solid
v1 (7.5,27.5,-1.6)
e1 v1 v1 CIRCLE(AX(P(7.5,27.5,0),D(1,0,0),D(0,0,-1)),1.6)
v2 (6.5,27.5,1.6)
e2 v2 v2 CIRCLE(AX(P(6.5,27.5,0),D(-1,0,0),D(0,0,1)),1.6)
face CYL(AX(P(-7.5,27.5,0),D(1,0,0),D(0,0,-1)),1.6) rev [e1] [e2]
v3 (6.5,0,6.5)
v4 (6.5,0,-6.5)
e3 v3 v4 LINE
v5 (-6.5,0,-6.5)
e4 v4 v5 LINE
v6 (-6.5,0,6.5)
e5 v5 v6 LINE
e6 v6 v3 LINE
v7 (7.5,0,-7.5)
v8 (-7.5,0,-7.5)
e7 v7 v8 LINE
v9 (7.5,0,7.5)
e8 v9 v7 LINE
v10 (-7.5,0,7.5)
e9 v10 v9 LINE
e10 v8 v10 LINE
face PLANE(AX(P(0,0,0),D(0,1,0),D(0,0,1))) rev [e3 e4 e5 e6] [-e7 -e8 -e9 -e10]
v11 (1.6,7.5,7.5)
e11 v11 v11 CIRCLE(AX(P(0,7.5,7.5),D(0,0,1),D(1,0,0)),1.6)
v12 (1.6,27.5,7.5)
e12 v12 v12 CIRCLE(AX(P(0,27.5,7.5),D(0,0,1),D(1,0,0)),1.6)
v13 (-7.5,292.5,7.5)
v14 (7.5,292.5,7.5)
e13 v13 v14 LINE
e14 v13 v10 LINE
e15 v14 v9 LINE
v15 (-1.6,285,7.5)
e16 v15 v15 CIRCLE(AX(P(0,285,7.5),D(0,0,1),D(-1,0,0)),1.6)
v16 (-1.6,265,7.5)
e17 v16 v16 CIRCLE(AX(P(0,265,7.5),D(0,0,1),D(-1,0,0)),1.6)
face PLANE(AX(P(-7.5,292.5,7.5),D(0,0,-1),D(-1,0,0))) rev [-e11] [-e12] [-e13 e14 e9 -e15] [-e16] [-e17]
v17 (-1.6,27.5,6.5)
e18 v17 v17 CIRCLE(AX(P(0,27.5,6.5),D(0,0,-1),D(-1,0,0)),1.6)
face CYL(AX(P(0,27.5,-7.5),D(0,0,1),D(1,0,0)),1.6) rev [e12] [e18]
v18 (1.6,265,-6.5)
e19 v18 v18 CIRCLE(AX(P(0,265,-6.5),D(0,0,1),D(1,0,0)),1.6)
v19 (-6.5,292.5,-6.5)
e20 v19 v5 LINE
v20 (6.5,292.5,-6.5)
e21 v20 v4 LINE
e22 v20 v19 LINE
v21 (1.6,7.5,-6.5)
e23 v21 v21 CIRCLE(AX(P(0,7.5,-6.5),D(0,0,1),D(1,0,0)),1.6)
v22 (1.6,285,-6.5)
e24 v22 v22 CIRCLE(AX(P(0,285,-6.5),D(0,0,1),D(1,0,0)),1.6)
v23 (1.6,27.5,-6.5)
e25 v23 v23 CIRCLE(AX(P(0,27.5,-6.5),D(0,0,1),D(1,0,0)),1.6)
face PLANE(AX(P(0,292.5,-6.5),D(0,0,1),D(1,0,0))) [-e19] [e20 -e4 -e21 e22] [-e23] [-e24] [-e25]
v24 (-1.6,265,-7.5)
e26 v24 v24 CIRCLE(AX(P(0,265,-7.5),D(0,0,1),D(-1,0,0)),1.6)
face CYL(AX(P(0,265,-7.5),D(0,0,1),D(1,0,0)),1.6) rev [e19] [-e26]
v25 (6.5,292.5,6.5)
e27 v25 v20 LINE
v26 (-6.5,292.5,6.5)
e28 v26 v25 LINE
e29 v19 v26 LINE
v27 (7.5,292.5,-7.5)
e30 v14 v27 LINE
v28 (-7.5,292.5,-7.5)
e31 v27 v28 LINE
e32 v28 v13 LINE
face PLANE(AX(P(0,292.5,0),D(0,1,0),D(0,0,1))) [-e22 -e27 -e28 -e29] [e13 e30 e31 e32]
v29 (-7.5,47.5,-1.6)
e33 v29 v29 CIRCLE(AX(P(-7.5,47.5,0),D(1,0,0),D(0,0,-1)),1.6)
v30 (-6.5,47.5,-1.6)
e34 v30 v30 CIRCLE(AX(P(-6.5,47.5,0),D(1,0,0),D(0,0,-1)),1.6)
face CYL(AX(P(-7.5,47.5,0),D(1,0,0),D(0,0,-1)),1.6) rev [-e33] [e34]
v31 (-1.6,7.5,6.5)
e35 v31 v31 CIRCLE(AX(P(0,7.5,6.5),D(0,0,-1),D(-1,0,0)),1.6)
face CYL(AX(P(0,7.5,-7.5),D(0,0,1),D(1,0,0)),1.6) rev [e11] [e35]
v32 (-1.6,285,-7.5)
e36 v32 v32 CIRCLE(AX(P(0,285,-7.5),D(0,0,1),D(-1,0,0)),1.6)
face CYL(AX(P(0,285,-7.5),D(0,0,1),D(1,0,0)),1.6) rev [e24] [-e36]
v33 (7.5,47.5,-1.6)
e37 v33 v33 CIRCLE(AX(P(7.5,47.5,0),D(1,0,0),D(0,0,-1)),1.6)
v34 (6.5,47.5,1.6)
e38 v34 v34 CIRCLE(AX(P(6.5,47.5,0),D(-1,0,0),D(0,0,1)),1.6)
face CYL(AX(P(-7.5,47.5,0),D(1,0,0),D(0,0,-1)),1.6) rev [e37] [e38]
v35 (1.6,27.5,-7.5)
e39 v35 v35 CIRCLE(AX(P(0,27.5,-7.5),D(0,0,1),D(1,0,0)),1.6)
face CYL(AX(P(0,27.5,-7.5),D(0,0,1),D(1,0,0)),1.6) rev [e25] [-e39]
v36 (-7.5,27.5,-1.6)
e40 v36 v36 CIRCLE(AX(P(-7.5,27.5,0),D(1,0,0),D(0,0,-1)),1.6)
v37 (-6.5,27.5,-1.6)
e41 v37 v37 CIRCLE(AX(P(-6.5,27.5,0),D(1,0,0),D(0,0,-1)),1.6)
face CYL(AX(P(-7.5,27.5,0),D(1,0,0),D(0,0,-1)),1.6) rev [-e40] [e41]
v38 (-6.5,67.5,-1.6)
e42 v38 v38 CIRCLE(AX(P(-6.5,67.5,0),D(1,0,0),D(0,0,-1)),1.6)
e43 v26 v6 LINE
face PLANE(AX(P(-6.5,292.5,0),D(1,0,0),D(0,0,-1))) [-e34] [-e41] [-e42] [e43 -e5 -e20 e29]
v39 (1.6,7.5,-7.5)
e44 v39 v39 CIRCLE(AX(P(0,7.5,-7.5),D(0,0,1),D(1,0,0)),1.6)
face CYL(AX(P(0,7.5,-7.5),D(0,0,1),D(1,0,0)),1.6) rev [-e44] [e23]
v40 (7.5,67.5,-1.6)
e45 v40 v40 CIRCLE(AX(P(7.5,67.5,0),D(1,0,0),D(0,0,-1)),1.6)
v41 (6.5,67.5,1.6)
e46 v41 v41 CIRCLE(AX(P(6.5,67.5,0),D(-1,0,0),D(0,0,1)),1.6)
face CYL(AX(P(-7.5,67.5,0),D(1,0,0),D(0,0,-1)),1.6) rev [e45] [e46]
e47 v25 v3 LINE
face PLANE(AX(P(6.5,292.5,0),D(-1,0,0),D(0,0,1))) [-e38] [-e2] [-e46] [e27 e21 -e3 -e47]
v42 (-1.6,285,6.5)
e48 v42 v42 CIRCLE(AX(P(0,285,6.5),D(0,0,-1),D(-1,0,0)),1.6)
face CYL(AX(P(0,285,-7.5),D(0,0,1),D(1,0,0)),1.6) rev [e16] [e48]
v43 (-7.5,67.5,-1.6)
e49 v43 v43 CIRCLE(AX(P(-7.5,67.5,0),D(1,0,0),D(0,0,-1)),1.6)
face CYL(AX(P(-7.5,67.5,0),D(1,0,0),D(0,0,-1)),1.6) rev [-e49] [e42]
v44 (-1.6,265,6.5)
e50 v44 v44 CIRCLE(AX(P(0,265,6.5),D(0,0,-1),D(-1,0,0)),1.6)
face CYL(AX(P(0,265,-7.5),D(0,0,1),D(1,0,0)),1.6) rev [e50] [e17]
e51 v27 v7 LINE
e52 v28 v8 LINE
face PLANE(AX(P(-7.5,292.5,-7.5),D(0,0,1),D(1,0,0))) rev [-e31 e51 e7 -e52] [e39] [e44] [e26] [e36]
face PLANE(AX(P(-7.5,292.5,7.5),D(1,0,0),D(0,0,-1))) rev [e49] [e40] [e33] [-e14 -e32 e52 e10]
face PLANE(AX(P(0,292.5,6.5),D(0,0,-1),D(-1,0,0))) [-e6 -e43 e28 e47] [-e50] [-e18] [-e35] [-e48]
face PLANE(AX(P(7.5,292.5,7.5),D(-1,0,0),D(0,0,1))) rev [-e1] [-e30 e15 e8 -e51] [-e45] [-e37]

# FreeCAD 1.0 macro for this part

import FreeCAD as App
import Part
import Sketcher

V = App.Vector
Q = App.Units.Quantity


def add_polygon(sketch, points):
    """Adds a closed chain of lines whose ends are joined by coincident constraints."""
    first, n = sketch.GeometryCount, len(points)
    for a, b in zip(points, points[1:] + points[:1]):
        sketch.addGeometry(Part.LineSegment(App.Vector(*a, 0), App.Vector(*b, 0)), False)
    for i in range(n):
        sketch.addConstraint(Sketcher.Constraint("Coincident", first + i, 2, first + (i + 1) % n, 1))

doc = App.newDocument("Part")
body = doc.addObject("PartDesign::Body", "Body")

# Sketch on XZ plane
sketch1 = body.newObject("Sketcher::SketchObject", "Sketch")
sketch1.AttachmentSupport = (doc.getObject("XZ_Plane"), [""])
sketch1.MapMode = "FlatFace"
add_polygon(sketch1, [(-7.5, -7.5), (-7.5, 7.5), (7.5, 7.5), (7.5, -7.5)])  # lines 0-3
add_polygon(sketch1, [(6.5, 6.5), (-6.5, 6.5), (-6.5, -6.5), (6.5, -6.5)])  # lines 4-7
sketch1.addConstraint([
    Sketcher.Constraint("Vertical", 0),
    Sketcher.Constraint("Horizontal", 1),
    Sketcher.Constraint("Vertical", 2),
    Sketcher.Constraint("Horizontal", 3),
    Sketcher.Constraint("Horizontal", 4),
    Sketcher.Constraint("Vertical", 5),
    Sketcher.Constraint("Horizontal", 6),
    Sketcher.Constraint("Vertical", 7),
    Sketcher.Constraint("Symmetric", 0, 2, 2, 2, -1, 1),
    Sketcher.Constraint("Symmetric", 4, 2, 6, 2, -1, 1),
    Sketcher.Constraint("Equal", 3, 0),
    Sketcher.Constraint("Equal", 6, 5),
    Sketcher.Constraint("DistanceX", 1, 1, 1, 2, Q("15 mm")),
    Sketcher.Constraint("DistanceX", 4, 2, 4, 1, Q("13 mm")),
])
pad1 = body.newObject("PartDesign::Pad", "Pad")
pad1.Profile = sketch1
pad1.Length = 292.5
pad1.Reversed = True

# Sketch on XY plane
sketch2 = body.newObject("Sketcher::SketchObject", "Sketch001")
sketch2.AttachmentSupport = (doc.getObject("XY_Plane"), [""])
sketch2.MapMode = "FlatFace"
sketch2.AttachmentOffset = App.Placement(V(0, 0, 7.5), App.Rotation())
sketch2.addGeometry([
    Part.Circle(V(0, 7.5, 0), V(0, 0, 1), 1.6),
    Part.Circle(V(0, 27.5, 0), V(0, 0, 1), 1.6),
    Part.Circle(V(0, 265, 0), V(0, 0, 1), 1.6),
    Part.Circle(V(0, 285, 0), V(0, 0, 1), 1.6),
], False)
sketch2.addConstraint([
    Sketcher.Constraint("Equal", 0, 1),
    Sketcher.Constraint("Equal", 1, 2),
    Sketcher.Constraint("Equal", 2, 3),
    Sketcher.Constraint("PointOnObject", 0, 3, -2),
    Sketcher.Constraint("PointOnObject", 1, 3, -2),
    Sketcher.Constraint("PointOnObject", 2, 3, -2),
    Sketcher.Constraint("PointOnObject", 3, 3, -2),
    Sketcher.Constraint("Diameter", 0, Q("3.2 mm")),
    Sketcher.Constraint("DistanceY", -1, 1, 2, 3, Q("265 mm")),
    Sketcher.Constraint("DistanceY", -1, 1, 3, 3, Q("285 mm")),
    Sketcher.Constraint("DistanceY", 0, 3, 1, 3, Q("20 mm")),
    Sketcher.Constraint("DistanceY", -1, 1, 0, 3, Q("7.5 mm")),
])
pocket1 = body.newObject("PartDesign::Pocket", "Pocket")
pocket1.Profile = sketch2
pocket1.Type = "ThroughAll"

# Sketch on YZ plane
sketch3 = body.newObject("Sketcher::SketchObject", "Sketch002")
sketch3.AttachmentSupport = (doc.getObject("YZ_Plane"), [""])
sketch3.MapMode = "FlatFace"
sketch3.AttachmentOffset = App.Placement(V(0, 0, 7.5), App.Rotation())
sketch3.addGeometry([
    Part.Circle(V(27.5, 0, 0), V(0, 0, 1), 1.6),
    Part.Circle(V(47.5, 0, 0), V(0, 0, 1), 1.6),
    Part.Circle(V(67.5, 0, 0), V(0, 0, 1), 1.6),
], False)
sketch3.addConstraint([
    Sketcher.Constraint("Equal", 0, 1),
    Sketcher.Constraint("Equal", 1, 2),
    Sketcher.Constraint("PointOnObject", 0, 3, -1),
    Sketcher.Constraint("PointOnObject", 1, 3, -1),
    Sketcher.Constraint("PointOnObject", 2, 3, -1),
    Sketcher.Constraint("Diameter", 0, Q("3.2 mm")),
    Sketcher.Constraint("DistanceX", 0, 3, 1, 3, Q("20 mm")),
    Sketcher.Constraint("DistanceX", 1, 3, 2, 3, Q("20 mm")),
    Sketcher.Constraint("DistanceX", -1, 1, 0, 3, Q("27.5 mm")),
])
pocket2 = body.newObject("PartDesign::Pocket", "Pocket001")
pocket2.Profile = sketch3
pocket2.Type = "ThroughAll"

doc.recompute()
